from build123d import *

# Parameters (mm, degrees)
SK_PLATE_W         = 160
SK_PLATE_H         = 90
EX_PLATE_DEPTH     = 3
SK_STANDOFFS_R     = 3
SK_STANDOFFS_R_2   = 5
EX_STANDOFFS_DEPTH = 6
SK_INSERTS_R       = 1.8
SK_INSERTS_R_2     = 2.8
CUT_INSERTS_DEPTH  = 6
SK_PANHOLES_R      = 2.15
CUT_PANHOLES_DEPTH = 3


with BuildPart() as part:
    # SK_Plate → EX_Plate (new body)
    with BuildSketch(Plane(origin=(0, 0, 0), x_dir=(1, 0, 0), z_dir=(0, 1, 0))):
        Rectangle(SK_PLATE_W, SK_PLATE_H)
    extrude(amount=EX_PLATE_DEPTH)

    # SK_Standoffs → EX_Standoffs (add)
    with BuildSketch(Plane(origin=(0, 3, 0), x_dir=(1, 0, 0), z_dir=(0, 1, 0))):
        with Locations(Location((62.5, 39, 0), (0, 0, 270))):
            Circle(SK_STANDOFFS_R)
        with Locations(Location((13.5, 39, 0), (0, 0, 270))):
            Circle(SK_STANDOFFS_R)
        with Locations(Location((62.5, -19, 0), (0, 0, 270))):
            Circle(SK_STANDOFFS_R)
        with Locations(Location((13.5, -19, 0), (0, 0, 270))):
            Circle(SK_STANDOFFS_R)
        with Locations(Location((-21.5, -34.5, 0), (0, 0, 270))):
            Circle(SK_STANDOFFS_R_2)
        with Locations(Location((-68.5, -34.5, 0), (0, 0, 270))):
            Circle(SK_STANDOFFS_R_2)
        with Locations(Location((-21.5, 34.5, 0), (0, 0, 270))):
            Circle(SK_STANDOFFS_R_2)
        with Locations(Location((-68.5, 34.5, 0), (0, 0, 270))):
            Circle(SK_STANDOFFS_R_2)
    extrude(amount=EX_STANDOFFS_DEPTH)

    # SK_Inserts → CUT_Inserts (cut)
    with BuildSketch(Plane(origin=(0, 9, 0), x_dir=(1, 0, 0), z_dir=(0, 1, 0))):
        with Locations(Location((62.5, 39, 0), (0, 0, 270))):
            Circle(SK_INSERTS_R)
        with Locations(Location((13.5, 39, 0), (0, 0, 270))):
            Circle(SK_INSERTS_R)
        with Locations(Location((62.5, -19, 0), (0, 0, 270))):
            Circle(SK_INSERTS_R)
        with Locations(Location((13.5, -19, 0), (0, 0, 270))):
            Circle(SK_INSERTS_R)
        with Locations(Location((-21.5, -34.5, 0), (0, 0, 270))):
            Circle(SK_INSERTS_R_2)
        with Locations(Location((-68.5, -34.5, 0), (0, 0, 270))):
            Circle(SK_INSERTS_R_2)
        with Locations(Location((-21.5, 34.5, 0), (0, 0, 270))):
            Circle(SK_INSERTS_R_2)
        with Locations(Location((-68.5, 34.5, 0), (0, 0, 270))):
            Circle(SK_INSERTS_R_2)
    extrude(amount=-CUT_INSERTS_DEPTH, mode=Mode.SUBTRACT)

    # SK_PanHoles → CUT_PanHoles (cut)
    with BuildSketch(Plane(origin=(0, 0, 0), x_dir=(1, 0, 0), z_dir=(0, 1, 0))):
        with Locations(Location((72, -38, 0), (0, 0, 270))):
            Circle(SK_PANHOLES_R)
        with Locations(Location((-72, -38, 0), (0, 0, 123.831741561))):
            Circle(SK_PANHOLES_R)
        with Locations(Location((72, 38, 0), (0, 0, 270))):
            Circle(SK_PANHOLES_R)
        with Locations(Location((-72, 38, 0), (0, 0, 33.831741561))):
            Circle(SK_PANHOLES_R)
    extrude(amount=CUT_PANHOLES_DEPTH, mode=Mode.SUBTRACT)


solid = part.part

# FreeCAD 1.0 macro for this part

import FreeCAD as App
import Part
import Sketcher
from FreeCAD import Vector


def add_polygon(sketch, points):
    """Adds a closed chain of lines whose ends are joined by coincident constraints."""
    first, n = sketch.GeometryCount, len(points)
    for a, b in zip(points, points[1:] + points[:1]):
        sketch.addGeometry(Part.LineSegment(App.Vector(*a, 0), App.Vector(*b, 0)), False)
    for i in range(n):
        sketch.addConstraint(Sketcher.Constraint("Coincident", first + i, 2, first + (i + 1) % n, 1))

doc = App.newDocument("Part")
body = doc.addObject("PartDesign::Body", "Body")

# Sketch on XZ plane
sketch1 = body.newObject("Sketcher::SketchObject", "Sketch")
sketch1.AttachmentSupport = (doc.getObject("XZ_Plane"), [""])
sketch1.MapMode = "FlatFace"
add_polygon(sketch1, [(-80, -45), (-80, 45), (80, 45), (80, -45)])  # lines 0-3
sketch1.addConstraint([
    Sketcher.Constraint("Vertical", 0),
    Sketcher.Constraint("Horizontal", 1),
    Sketcher.Constraint("Vertical", 2),
    Sketcher.Constraint("Horizontal", 3),
    Sketcher.Constraint("Symmetric", 0, 2, 2, 2, -1, 1),
    Sketcher.Constraint("DistanceX", 1, 1, 1, 2, 160.0),
    Sketcher.Constraint("DistanceY", 0, 1, 0, 2, 90.0),
])
pad1 = body.newObject("PartDesign::Pad", "Pad")
pad1.Profile = sketch1
pad1.Length = 3
pad1.Reversed = True

# Sketch on XZ plane
sketch2 = body.newObject("Sketcher::SketchObject", "Sketch001")
sketch2.AttachmentSupport = (doc.getObject("XZ_Plane"), [""])
sketch2.MapMode = "FlatFace"
sketch2.AttachmentOffset = App.Placement(Vector(0, 0, -3), App.Rotation())
sketch2.addGeometry([
    Part.Circle(Vector(62.5, -39, 0), Vector(0, 0, 1), 3),  # 0
    Part.Circle(Vector(13.5, -39, 0), Vector(0, 0, 1), 3),  # 1
    Part.Circle(Vector(62.5, 19, 0), Vector(0, 0, 1), 3),  # 2
    Part.Circle(Vector(13.5, 19, 0), Vector(0, 0, 1), 3),  # 3
    Part.Circle(Vector(-21.5, 34.5, 0), Vector(0, 0, 1), 5),  # 4
    Part.Circle(Vector(-68.5, 34.5, 0), Vector(0, 0, 1), 5),  # 5
    Part.Circle(Vector(-21.5, -34.5, 0), Vector(0, 0, 1), 5),  # 6
    Part.Circle(Vector(-68.5, -34.5, 0), Vector(0, 0, 1), 5),  # 7
], False)
sketch2.addConstraint([
    Sketcher.Constraint("Equal", 0, 1),
    Sketcher.Constraint("Equal", 1, 2),
    Sketcher.Constraint("Equal", 2, 3),
    Sketcher.Constraint("Equal", 4, 5),
    Sketcher.Constraint("Equal", 5, 6),
    Sketcher.Constraint("Equal", 6, 7),
    Sketcher.Constraint("Symmetric", 4, 3, 6, 3, -1),
    Sketcher.Constraint("Symmetric", 5, 3, 7, 3, -1),
    Sketcher.Constraint("Horizontal", 0, 3, 1, 3),
    Sketcher.Constraint("Horizontal", 2, 3, 3, 3),
    Sketcher.Constraint("Horizontal", 4, 3, 5, 3),
    Sketcher.Constraint("Vertical", 0, 3, 2, 3),
    Sketcher.Constraint("Vertical", 1, 3, 3, 3),
    Sketcher.Constraint("Diameter", 0, 6.0),
    Sketcher.Constraint("Diameter", 4, 10.0),
    Sketcher.Constraint("DistanceY", 0, 3, -1, 1, 39.0),
    Sketcher.Constraint("DistanceY", -1, 1, 2, 3, 19.0),
    Sketcher.Constraint("DistanceX", 1, 3, 0, 3, 49.0),
    Sketcher.Constraint("DistanceX", 4, 3, 3, 3, 35.0),
    Sketcher.Constraint("DistanceX", 5, 3, 4, 3, 47.0),
    Sketcher.Constraint("DistanceY", 6, 3, 4, 3, 69.0),
    Sketcher.Constraint("DistanceX", -1, 1, 0, 3, 62.5),
])
pad2 = body.newObject("PartDesign::Pad", "Pad001")
pad2.Profile = sketch2
pad2.Length = 6
pad2.Reversed = True

# Sketch on XZ plane
sketch3 = body.newObject("Sketcher::SketchObject", "Sketch002")
sketch3.AttachmentSupport = (doc.getObject("XZ_Plane"), [""])
sketch3.MapMode = "FlatFace"
sketch3.AttachmentOffset = App.Placement(Vector(0, 0, -9), App.Rotation())
sketch3.addGeometry([
    Part.Circle(Vector(62.5, -39, 0), Vector(0, 0, 1), 1.8),  # 0
    Part.Circle(Vector(13.5, -39, 0), Vector(0, 0, 1), 1.8),  # 1
    Part.Circle(Vector(62.5, 19, 0), Vector(0, 0, 1), 1.8),  # 2
    Part.Circle(Vector(13.5, 19, 0), Vector(0, 0, 1), 1.8),  # 3
    Part.Circle(Vector(-21.5, 34.5, 0), Vector(0, 0, 1), 2.8),  # 4
    Part.Circle(Vector(-68.5, 34.5, 0), Vector(0, 0, 1), 2.8),  # 5
    Part.Circle(Vector(-21.5, -34.5, 0), Vector(0, 0, 1), 2.8),  # 6
    Part.Circle(Vector(-68.5, -34.5, 0), Vector(0, 0, 1), 2.8),  # 7
], False)
sketch3.addConstraint([
    Sketcher.Constraint("Equal", 0, 1),
    Sketcher.Constraint("Equal", 1, 2),
    Sketcher.Constraint("Equal", 2, 3),
    Sketcher.Constraint("Equal", 4, 5),
    Sketcher.Constraint("Equal", 5, 6),
    Sketcher.Constraint("Equal", 6, 7),
    Sketcher.Constraint("Symmetric", 4, 3, 6, 3, -1),
    Sketcher.Constraint("Symmetric", 5, 3, 7, 3, -1),
    Sketcher.Constraint("Horizontal", 0, 3, 1, 3),
    Sketcher.Constraint("Horizontal", 2, 3, 3, 3),
    Sketcher.Constraint("Horizontal", 4, 3, 5, 3),
    Sketcher.Constraint("Vertical", 0, 3, 2, 3),
    Sketcher.Constraint("Vertical", 1, 3, 3, 3),
    Sketcher.Constraint("Diameter", 0, 3.6),
    Sketcher.Constraint("Diameter", 4, 5.6),
    Sketcher.Constraint("DistanceY", 0, 3, -1, 1, 39.0),
    Sketcher.Constraint("DistanceY", -1, 1, 2, 3, 19.0),
    Sketcher.Constraint("DistanceX", 1, 3, 0, 3, 49.0),
    Sketcher.Constraint("DistanceX", 4, 3, 3, 3, 35.0),
    Sketcher.Constraint("DistanceX", 5, 3, 4, 3, 47.0),
    Sketcher.Constraint("DistanceY", 6, 3, 4, 3, 69.0),
    Sketcher.Constraint("DistanceX", -1, 1, 0, 3, 62.5),
])
pocket1 = body.newObject("PartDesign::Pocket", "Pocket")
pocket1.Profile = sketch3
pocket1.Length = 6
pocket1.Reversed = True

# Sketch on XZ plane
sketch4 = body.newObject("Sketcher::SketchObject", "Sketch003")
sketch4.AttachmentSupport = (doc.getObject("XZ_Plane"), [""])
sketch4.MapMode = "FlatFace"
sketch4.addGeometry([
    Part.Circle(Vector(72, 38, 0), Vector(0, 0, 1), 2.1),
    Part.Circle(Vector(-72, 38, 0), Vector(0, 0, 1), 2.1),
    Part.Circle(Vector(72, -38, 0), Vector(0, 0, 1), 2.1),
    Part.Circle(Vector(-72, -38, 0), Vector(0, 0, 1), 2.1),
], False)
sketch4.addConstraint([
    Sketcher.Constraint("Equal", 0, 1),
    Sketcher.Constraint("Equal", 1, 2),
    Sketcher.Constraint("Equal", 2, 3),
    Sketcher.Constraint("Symmetric", 1, 3, 2, 3, -1, 1),
    Sketcher.Constraint("Symmetric", 0, 3, 3, 3, -1, 1),
    Sketcher.Constraint("Symmetric", 0, 3, 1, 3, -2),
    Sketcher.Constraint("Diameter", 0, 4.3),
    Sketcher.Constraint("DistanceX", -1, 1, 0, 3, 72.0),
    Sketcher.Constraint("DistanceY", -1, 1, 0, 3, 38.0),
])
pocket2 = body.newObject("PartDesign::Pocket", "Pocket001")
pocket2.Profile = sketch4
pocket2.Length = 3

doc.recompute()
